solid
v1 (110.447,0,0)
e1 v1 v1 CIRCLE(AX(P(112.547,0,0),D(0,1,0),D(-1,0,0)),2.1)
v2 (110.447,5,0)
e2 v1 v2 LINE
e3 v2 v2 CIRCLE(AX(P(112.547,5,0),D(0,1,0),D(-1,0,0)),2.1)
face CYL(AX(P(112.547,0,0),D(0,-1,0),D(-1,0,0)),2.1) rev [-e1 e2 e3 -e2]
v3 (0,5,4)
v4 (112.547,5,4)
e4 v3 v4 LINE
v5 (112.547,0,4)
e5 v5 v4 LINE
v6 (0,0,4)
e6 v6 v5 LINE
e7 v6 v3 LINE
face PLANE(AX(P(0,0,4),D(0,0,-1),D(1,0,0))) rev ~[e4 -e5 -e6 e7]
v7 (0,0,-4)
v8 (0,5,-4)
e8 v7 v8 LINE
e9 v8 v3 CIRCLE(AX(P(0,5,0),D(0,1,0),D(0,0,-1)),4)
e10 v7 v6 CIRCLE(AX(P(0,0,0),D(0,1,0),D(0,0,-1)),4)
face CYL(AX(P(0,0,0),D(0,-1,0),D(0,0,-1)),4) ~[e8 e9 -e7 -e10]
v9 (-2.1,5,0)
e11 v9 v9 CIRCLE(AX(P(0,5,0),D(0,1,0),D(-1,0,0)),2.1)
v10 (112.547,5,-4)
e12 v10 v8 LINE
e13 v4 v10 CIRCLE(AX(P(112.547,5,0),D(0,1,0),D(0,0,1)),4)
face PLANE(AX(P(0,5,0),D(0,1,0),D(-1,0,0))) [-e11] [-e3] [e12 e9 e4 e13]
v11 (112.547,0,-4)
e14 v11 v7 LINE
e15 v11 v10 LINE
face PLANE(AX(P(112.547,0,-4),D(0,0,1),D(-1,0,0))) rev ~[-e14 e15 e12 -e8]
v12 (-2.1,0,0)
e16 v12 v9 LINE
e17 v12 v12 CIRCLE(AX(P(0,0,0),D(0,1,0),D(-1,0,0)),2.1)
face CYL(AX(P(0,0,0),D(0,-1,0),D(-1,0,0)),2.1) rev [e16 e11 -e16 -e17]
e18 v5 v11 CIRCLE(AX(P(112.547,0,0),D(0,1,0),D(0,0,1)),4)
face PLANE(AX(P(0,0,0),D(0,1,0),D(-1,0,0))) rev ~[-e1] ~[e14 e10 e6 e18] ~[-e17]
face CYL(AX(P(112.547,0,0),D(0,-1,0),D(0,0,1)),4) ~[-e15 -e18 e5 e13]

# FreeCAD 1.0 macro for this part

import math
import FreeCAD as App
import Part
import Sketcher
from FreeCAD import Vector

doc = App.newDocument("Part")
params = doc.addObject("Spreadsheet::Sheet", "Params")
for row, (alias, value) in enumerate([
    ("sketch1_radius", "4 mm"),
    ("sketch1_diameter", "4.2 mm"),
    ("pad1_length", "5 mm"),
], start=1):
    params.set(f"A{row}", alias)
    params.set(f"B{row}", "=" + value)
    params.setAlias(f"B{row}", alias)

body = doc.addObject("PartDesign::Body", "Body")

# Sketch on XZ plane
sketch1 = doc.addObject("Sketcher::SketchObject", "Sketch")
body.addObject(sketch1)
sketch1.AttachmentSupport = (doc.XZ_Plane, [""])
sketch1.MapMode = "FlatFace"
sketch1.addGeometry(Part.ArcOfCircle(Part.Circle(Vector(0, 0, 0), Vector(0, 0, 1), 4), math.radians(90), math.radians(270)), False)
sketch1.addGeometry(Part.LineSegment(Vector(0, 4, 0), Vector(112.5, 4, 0)), False)
sketch1.addGeometry(Part.ArcOfCircle(Part.Circle(Vector(112.5, 0, 0), Vector(0, 0, 1), 4), math.radians(-90), math.radians(90)), False)
sketch1.addGeometry(Part.LineSegment(Vector(112.5, -4, 0), Vector(0, -4, 0)), False)
sketch1.addGeometry(Part.Circle(Vector(112.5, 0, 0), Vector(0, 0, 1), 2.1), False)
sketch1.addGeometry(Part.Circle(Vector(0, 0, 0), Vector(0, 0, 1), 2.1), False)
sketch1.addConstraint(Sketcher.Constraint("Tangent", 0, 1, 1, 1))
sketch1.addConstraint(Sketcher.Constraint("Tangent", 1, 2, 2, 2))
sketch1.addConstraint(Sketcher.Constraint("Tangent", 2, 1, 3, 1))
sketch1.addConstraint(Sketcher.Constraint("Tangent", 3, 2, 0, 2))
sketch1.addConstraint(Sketcher.Constraint("Horizontal", 1))
sketch1.addConstraint(Sketcher.Constraint("Horizontal", 3))
sketch1.addConstraint(Sketcher.Constraint("Coincident", 0, 3, -1, 1))
sketch1.addConstraint(Sketcher.Constraint("Coincident", 5, 3, -1, 1))
sketch1.addConstraint(Sketcher.Constraint("Coincident", 4, 3, 2, 3))
sketch1.addConstraint(Sketcher.Constraint("Equal", 4, 5))
sketch1.addConstraint(Sketcher.Constraint("Radius", 0, 4.0))
sketch1.addConstraint(Sketcher.Constraint("Diameter", 4, 4.2))
sketch1.addConstraint(Sketcher.Constraint("DistanceX", 1, 1, 1, 2, 112.547))
sketch1.setExpression("Constraints[10]", "Params.sketch1_radius")
sketch1.setExpression("Constraints[11]", "Params.sketch1_diameter")
pad1 = doc.addObject("PartDesign::Pad", "Pad")
body.addObject(pad1)
pad1.Profile = sketch1
pad1.setExpression("Length", "Params.pad1_length")
pad1.Reversed = True

doc.recompute()
